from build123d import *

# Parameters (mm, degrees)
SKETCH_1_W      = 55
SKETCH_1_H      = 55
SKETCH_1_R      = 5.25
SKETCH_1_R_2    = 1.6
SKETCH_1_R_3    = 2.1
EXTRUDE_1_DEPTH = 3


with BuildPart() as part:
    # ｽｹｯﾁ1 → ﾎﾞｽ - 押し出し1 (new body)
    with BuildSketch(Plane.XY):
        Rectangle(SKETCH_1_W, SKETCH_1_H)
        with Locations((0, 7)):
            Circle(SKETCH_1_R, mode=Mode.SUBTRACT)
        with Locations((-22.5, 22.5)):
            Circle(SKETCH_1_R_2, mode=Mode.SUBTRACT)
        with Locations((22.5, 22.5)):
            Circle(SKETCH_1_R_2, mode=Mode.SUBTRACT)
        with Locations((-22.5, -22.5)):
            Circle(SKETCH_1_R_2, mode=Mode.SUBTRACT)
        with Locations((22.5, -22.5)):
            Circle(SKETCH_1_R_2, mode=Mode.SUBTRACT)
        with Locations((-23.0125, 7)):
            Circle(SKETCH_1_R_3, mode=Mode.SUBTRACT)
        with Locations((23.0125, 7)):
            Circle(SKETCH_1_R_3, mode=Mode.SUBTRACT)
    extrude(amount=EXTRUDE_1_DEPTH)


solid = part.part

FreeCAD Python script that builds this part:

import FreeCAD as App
import Part
import Sketcher


def add_polygon(sketch, points):
    """Adds a closed chain of lines whose ends are joined by coincident constraints."""
    first, n = sketch.GeometryCount, len(points)
    for a, b in zip(points, points[1:] + points[:1]):
        sketch.addGeometry(Part.LineSegment(App.Vector(*a, 0), App.Vector(*b, 0)), False)
    for i in range(n):
        sketch.addConstraint(Sketcher.Constraint("Coincident", first + i, 2, first + (i + 1) % n, 1))

doc = App.newDocument("Part")
params = doc.addObject("Spreadsheet::Sheet", "Params")
for row, (alias, value) in enumerate([
    ("sketch1_diameter", "3.2 mm"),
    ("sketch1_diameter2", "4.2 mm"),
    ("sketch1_diameter3", "10.5 mm"),
    ("sketch1_width", "55 mm"),
    ("pad1_length", "3 mm"),
], start=1):
    params.set(f"A{row}", alias)
    params.set(f"B{row}", "=" + value)
    params.setAlias(f"B{row}", alias)

body = doc.addObject("PartDesign::Body", "Body")

sketch1 = doc.addObject("Sketcher::SketchObject", "Sketch")
body.addObject(sketch1)
sketch1.AttachmentSupport = (doc.XY_Plane, [""])
sketch1.MapMode = "FlatFace"
add_polygon(sketch1, [(-27.5, 27.5), (-27.5, -27.5), (27.5, -27.5), (27.5, 27.5)])
sketch1.addGeometry(Part.Circle(App.Vector(-22.5, -22.5, 0), App.Vector(0, 0, 1), 1.6), False)
sketch1.addGeometry(Part.Circle(App.Vector(22.5, -22.5, 0), App.Vector(0, 0, 1), 1.6), False)
sketch1.addGeometry(Part.Circle(App.Vector(-23, 7, 0), App.Vector(0, 0, 1), 2.1), False)
sketch1.addGeometry(Part.Circle(App.Vector(-22.5, 22.5, 0), App.Vector(0, 0, 1), 1.6), False)
sketch1.addGeometry(Part.Circle(App.Vector(0, 7, 0), App.Vector(0, 0, 1), 5.2), False)
sketch1.addGeometry(Part.Circle(App.Vector(23, 7, 0), App.Vector(0, 0, 1), 2.1), False)
sketch1.addGeometry(Part.Circle(App.Vector(22.5, 22.5, 0), App.Vector(0, 0, 1), 1.6), False)
sketch1.addConstraint([
    Sketcher.Constraint("Vertical", 0),
    Sketcher.Constraint("Horizontal", 1),
    Sketcher.Constraint("Vertical", 2),
    Sketcher.Constraint("Horizontal", 3),
    Sketcher.Constraint("Equal", 4, 5),
    Sketcher.Constraint("Equal", 5, 7),
    Sketcher.Constraint("Equal", 6, 9),
    Sketcher.Constraint("Equal", 7, 10),
    Sketcher.Constraint("Symmetric", 5, 3, 7, 3, -1, 1),
    Sketcher.Constraint("Symmetric", 4, 3, 10, 3, -1, 1),
    Sketcher.Constraint("Symmetric", 0, 2, 2, 2, -1, 1),
    Sketcher.Constraint("Symmetric", 4, 3, 5, 3, -2),
    Sketcher.Constraint("Symmetric", 6, 3, 9, 3, -2),
    Sketcher.Constraint("PointOnObject", 8, 3, -2),
    Sketcher.Constraint("Horizontal", 6, 3, 8, 3),
    Sketcher.Constraint("Equal", 3, 0),
    Sketcher.Constraint("Diameter", 4, 3.2),
    Sketcher.Constraint("Diameter", 6, 4.2),
    Sketcher.Constraint("Diameter", 8, 10.5),
    Sketcher.Constraint("DistanceX", 1, 1, 1, 2, 55.0),
    Sketcher.Constraint("DistanceY", -1, 1, 6, 3, 7.0),
    Sketcher.Constraint("DistanceX", 4, 3, 5, 3, 45.0),
    Sketcher.Constraint("DistanceY", 4, 3, 7, 3, 45.0),
    Sketcher.Constraint("DistanceX", 6, 3, 9, 3, 46.025),
])
sketch1.setExpression("Constraints[20]", "Params.sketch1_diameter")
sketch1.setExpression("Constraints[21]", "Params.sketch1_diameter2")
sketch1.setExpression("Constraints[22]", "Params.sketch1_diameter3")
sketch1.setExpression("Constraints[23]", "Params.sketch1_width")
pad1 = doc.addObject("PartDesign::Pad", "Pad")
body.addObject(pad1)
pad1.Profile = sketch1
pad1.setExpression("Length", "Params.pad1_length")

doc.recompute()
